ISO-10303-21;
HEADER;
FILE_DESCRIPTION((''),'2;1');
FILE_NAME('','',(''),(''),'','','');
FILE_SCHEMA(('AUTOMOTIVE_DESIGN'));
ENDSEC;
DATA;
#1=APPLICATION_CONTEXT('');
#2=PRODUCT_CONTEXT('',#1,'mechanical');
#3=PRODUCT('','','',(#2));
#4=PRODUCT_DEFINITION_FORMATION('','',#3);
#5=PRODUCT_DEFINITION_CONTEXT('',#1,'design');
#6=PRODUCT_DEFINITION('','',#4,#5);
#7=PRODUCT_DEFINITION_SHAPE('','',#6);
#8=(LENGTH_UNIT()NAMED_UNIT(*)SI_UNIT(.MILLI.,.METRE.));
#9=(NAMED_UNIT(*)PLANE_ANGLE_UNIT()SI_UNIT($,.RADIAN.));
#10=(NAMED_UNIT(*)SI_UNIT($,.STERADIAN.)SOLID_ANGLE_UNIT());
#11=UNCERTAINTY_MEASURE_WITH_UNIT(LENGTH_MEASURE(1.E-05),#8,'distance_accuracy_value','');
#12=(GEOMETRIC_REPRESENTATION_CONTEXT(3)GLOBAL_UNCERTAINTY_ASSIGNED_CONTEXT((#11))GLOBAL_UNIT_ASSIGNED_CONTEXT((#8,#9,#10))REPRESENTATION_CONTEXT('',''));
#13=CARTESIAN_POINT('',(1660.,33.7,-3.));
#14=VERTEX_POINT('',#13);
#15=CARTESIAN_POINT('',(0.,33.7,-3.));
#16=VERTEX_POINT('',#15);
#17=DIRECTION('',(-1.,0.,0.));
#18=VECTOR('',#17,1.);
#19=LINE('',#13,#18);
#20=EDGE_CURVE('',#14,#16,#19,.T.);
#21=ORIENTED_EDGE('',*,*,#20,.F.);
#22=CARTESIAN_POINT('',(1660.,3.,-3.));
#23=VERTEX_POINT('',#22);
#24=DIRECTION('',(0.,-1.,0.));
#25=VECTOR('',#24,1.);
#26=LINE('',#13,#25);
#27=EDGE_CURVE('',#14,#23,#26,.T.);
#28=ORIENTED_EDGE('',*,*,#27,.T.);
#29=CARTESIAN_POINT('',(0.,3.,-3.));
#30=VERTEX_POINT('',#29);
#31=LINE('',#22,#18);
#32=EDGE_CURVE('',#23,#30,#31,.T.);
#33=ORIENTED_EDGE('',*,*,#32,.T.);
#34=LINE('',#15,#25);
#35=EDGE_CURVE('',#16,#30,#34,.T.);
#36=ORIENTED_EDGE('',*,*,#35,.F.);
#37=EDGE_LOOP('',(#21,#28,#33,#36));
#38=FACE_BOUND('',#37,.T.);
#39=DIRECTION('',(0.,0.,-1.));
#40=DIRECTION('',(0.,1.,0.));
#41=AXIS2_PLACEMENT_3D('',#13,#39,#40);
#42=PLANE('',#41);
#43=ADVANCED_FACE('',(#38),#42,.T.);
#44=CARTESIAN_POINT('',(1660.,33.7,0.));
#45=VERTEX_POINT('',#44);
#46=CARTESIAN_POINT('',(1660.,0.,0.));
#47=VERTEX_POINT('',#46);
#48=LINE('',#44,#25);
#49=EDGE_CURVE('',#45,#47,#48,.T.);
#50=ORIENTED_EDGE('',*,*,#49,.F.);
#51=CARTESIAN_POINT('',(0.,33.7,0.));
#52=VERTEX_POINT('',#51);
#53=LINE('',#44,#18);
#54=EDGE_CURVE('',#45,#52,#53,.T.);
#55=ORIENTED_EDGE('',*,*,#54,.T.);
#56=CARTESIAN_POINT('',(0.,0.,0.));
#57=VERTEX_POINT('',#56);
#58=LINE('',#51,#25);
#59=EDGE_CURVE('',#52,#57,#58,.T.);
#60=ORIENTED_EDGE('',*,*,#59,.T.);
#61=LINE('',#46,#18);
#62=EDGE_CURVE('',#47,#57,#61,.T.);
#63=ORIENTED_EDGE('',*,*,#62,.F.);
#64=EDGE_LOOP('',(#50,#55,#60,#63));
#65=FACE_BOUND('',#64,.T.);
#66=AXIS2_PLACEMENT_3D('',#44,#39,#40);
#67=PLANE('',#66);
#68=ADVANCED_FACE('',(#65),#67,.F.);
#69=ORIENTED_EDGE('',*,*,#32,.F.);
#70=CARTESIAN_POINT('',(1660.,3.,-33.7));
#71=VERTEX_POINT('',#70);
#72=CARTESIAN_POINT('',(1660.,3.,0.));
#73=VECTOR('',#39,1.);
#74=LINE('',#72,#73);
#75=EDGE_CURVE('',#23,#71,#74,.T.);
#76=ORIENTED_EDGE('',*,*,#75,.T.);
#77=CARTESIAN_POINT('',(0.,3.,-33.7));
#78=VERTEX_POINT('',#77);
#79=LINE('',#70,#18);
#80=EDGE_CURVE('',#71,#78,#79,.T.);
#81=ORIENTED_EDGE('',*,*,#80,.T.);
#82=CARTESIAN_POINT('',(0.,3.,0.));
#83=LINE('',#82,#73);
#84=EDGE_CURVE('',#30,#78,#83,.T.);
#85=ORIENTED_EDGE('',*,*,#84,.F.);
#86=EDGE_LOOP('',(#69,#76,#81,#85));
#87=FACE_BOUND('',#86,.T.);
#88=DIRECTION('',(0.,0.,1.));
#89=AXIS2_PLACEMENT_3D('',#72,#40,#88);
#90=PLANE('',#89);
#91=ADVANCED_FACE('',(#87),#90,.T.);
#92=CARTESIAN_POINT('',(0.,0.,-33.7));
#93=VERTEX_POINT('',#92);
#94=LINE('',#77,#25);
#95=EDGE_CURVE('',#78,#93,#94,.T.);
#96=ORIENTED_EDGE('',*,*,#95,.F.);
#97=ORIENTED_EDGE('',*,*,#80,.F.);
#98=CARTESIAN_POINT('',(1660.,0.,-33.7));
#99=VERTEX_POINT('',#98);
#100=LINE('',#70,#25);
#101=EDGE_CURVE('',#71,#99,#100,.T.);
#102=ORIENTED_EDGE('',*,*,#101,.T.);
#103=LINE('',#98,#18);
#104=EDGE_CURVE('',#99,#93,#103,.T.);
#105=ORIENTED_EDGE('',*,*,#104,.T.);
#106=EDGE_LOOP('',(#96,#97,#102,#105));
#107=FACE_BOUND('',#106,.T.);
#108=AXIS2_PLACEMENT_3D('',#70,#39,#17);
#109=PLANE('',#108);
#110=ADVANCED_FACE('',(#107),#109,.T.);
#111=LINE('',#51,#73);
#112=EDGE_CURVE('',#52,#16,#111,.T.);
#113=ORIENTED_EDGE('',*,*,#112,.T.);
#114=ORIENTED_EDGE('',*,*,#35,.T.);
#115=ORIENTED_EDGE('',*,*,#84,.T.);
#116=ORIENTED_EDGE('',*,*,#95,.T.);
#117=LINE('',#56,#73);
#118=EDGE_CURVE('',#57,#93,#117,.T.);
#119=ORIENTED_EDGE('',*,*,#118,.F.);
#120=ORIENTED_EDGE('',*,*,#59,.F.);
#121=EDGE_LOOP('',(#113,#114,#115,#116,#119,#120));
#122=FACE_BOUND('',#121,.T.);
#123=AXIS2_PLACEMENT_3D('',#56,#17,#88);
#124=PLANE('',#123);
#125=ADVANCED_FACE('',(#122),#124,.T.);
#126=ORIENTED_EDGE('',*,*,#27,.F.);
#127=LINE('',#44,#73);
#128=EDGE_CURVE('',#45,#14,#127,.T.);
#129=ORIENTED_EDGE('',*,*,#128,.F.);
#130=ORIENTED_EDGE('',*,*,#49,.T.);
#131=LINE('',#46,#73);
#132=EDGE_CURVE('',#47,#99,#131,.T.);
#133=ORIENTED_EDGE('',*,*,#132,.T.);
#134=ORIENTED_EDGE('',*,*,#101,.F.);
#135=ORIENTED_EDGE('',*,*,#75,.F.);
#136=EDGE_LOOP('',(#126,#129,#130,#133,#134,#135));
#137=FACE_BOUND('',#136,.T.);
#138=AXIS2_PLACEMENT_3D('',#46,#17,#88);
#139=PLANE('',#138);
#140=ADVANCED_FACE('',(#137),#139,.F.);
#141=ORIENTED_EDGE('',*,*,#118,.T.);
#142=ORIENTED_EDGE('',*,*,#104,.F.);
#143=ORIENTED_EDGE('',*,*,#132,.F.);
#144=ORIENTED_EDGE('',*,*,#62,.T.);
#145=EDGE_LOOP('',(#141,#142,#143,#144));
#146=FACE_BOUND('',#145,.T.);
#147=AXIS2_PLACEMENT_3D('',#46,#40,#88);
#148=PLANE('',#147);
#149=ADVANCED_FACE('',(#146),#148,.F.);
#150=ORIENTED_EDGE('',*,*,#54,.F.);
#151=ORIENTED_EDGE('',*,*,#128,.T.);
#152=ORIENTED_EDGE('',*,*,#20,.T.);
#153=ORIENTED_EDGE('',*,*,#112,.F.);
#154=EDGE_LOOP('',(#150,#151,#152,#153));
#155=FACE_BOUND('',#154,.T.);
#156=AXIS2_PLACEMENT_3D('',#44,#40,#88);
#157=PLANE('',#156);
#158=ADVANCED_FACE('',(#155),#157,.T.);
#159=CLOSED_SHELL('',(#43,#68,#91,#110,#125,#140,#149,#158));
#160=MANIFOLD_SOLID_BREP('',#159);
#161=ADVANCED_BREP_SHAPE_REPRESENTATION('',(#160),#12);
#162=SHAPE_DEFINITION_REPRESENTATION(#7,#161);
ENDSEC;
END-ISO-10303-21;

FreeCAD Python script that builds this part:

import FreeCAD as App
import Part
import Sketcher
from FreeCAD import Vector
Q = App.Units.Quantity

doc = App.newDocument("Part")
params = doc.addObject("Spreadsheet::Sheet", "Params")
for row, (alias, value) in enumerate([
    ("sketch1_width", "3 mm"),
    ("sketch1_width2", "33.7 mm"),
    ("pad1_length", "1660 mm"),
], start=1):
    params.set(f"A{row}", alias)
    params.set(f"B{row}", "=" + value)
    params.setAlias(f"B{row}", alias)

body = doc.addObject("PartDesign::Body", "Body")

# Sketch on YZ plane
sketch1 = body.newObject("Sketcher::SketchObject", "Sketch")
sketch1.AttachmentSupport = (doc.getObject("YZ_Plane"), [""])
sketch1.MapMode = "FlatFace"
sketch1.addGeometry([
    Part.LineSegment(Vector(33.7, 0, 0), Vector(0, 0, 0)),  # 0
    Part.LineSegment(Vector(0, 0, 0), Vector(0, -33.7, 0)),  # 1
    Part.LineSegment(Vector(0, -33.7, 0), Vector(3, -33.7, 0)),  # 2
    Part.LineSegment(Vector(3, -33.7, 0), Vector(3, -3, 0)),  # 3
    Part.LineSegment(Vector(3, -3, 0), Vector(33.7, -3, 0)),  # 4
    Part.LineSegment(Vector(33.7, -3, 0), Vector(33.7, 0, 0)),  # 5
], False)
sketch1.addConstraint([
    Sketcher.Constraint("Coincident", 0, 2, 1, 1),
    Sketcher.Constraint("Coincident", 1, 2, 2, 1),
    Sketcher.Constraint("Coincident", 2, 2, 3, 1),
    Sketcher.Constraint("Coincident", 3, 2, 4, 1),
    Sketcher.Constraint("Coincident", 4, 2, 5, 1),
    Sketcher.Constraint("Coincident", 5, 2, 0, 1),
    Sketcher.Constraint("Horizontal", 0),
    Sketcher.Constraint("Vertical", 1),
    Sketcher.Constraint("Horizontal", 2),
    Sketcher.Constraint("Vertical", 3),
    Sketcher.Constraint("Horizontal", 4),
    Sketcher.Constraint("Vertical", 5),
    Sketcher.Constraint("Coincident", 0, 2, -1, 1),
    Sketcher.Constraint("Equal", 0, 1),
    Sketcher.Constraint("Equal", 4, 3),
    Sketcher.Constraint("DistanceX", 2, 1, 2, 2, Q("3 mm")),
    Sketcher.Constraint("DistanceX", 0, 2, 0, 1, Q("33.7 mm")),
])
sketch1.setExpression("Constraints[15]", "Params.sketch1_width")
sketch1.setExpression("Constraints[16]", "Params.sketch1_width2")
pad1 = body.newObject("PartDesign::Pad", "Pad")
pad1.Profile = sketch1
pad1.setExpression("Length", "Params.pad1_length")

doc.recompute()
